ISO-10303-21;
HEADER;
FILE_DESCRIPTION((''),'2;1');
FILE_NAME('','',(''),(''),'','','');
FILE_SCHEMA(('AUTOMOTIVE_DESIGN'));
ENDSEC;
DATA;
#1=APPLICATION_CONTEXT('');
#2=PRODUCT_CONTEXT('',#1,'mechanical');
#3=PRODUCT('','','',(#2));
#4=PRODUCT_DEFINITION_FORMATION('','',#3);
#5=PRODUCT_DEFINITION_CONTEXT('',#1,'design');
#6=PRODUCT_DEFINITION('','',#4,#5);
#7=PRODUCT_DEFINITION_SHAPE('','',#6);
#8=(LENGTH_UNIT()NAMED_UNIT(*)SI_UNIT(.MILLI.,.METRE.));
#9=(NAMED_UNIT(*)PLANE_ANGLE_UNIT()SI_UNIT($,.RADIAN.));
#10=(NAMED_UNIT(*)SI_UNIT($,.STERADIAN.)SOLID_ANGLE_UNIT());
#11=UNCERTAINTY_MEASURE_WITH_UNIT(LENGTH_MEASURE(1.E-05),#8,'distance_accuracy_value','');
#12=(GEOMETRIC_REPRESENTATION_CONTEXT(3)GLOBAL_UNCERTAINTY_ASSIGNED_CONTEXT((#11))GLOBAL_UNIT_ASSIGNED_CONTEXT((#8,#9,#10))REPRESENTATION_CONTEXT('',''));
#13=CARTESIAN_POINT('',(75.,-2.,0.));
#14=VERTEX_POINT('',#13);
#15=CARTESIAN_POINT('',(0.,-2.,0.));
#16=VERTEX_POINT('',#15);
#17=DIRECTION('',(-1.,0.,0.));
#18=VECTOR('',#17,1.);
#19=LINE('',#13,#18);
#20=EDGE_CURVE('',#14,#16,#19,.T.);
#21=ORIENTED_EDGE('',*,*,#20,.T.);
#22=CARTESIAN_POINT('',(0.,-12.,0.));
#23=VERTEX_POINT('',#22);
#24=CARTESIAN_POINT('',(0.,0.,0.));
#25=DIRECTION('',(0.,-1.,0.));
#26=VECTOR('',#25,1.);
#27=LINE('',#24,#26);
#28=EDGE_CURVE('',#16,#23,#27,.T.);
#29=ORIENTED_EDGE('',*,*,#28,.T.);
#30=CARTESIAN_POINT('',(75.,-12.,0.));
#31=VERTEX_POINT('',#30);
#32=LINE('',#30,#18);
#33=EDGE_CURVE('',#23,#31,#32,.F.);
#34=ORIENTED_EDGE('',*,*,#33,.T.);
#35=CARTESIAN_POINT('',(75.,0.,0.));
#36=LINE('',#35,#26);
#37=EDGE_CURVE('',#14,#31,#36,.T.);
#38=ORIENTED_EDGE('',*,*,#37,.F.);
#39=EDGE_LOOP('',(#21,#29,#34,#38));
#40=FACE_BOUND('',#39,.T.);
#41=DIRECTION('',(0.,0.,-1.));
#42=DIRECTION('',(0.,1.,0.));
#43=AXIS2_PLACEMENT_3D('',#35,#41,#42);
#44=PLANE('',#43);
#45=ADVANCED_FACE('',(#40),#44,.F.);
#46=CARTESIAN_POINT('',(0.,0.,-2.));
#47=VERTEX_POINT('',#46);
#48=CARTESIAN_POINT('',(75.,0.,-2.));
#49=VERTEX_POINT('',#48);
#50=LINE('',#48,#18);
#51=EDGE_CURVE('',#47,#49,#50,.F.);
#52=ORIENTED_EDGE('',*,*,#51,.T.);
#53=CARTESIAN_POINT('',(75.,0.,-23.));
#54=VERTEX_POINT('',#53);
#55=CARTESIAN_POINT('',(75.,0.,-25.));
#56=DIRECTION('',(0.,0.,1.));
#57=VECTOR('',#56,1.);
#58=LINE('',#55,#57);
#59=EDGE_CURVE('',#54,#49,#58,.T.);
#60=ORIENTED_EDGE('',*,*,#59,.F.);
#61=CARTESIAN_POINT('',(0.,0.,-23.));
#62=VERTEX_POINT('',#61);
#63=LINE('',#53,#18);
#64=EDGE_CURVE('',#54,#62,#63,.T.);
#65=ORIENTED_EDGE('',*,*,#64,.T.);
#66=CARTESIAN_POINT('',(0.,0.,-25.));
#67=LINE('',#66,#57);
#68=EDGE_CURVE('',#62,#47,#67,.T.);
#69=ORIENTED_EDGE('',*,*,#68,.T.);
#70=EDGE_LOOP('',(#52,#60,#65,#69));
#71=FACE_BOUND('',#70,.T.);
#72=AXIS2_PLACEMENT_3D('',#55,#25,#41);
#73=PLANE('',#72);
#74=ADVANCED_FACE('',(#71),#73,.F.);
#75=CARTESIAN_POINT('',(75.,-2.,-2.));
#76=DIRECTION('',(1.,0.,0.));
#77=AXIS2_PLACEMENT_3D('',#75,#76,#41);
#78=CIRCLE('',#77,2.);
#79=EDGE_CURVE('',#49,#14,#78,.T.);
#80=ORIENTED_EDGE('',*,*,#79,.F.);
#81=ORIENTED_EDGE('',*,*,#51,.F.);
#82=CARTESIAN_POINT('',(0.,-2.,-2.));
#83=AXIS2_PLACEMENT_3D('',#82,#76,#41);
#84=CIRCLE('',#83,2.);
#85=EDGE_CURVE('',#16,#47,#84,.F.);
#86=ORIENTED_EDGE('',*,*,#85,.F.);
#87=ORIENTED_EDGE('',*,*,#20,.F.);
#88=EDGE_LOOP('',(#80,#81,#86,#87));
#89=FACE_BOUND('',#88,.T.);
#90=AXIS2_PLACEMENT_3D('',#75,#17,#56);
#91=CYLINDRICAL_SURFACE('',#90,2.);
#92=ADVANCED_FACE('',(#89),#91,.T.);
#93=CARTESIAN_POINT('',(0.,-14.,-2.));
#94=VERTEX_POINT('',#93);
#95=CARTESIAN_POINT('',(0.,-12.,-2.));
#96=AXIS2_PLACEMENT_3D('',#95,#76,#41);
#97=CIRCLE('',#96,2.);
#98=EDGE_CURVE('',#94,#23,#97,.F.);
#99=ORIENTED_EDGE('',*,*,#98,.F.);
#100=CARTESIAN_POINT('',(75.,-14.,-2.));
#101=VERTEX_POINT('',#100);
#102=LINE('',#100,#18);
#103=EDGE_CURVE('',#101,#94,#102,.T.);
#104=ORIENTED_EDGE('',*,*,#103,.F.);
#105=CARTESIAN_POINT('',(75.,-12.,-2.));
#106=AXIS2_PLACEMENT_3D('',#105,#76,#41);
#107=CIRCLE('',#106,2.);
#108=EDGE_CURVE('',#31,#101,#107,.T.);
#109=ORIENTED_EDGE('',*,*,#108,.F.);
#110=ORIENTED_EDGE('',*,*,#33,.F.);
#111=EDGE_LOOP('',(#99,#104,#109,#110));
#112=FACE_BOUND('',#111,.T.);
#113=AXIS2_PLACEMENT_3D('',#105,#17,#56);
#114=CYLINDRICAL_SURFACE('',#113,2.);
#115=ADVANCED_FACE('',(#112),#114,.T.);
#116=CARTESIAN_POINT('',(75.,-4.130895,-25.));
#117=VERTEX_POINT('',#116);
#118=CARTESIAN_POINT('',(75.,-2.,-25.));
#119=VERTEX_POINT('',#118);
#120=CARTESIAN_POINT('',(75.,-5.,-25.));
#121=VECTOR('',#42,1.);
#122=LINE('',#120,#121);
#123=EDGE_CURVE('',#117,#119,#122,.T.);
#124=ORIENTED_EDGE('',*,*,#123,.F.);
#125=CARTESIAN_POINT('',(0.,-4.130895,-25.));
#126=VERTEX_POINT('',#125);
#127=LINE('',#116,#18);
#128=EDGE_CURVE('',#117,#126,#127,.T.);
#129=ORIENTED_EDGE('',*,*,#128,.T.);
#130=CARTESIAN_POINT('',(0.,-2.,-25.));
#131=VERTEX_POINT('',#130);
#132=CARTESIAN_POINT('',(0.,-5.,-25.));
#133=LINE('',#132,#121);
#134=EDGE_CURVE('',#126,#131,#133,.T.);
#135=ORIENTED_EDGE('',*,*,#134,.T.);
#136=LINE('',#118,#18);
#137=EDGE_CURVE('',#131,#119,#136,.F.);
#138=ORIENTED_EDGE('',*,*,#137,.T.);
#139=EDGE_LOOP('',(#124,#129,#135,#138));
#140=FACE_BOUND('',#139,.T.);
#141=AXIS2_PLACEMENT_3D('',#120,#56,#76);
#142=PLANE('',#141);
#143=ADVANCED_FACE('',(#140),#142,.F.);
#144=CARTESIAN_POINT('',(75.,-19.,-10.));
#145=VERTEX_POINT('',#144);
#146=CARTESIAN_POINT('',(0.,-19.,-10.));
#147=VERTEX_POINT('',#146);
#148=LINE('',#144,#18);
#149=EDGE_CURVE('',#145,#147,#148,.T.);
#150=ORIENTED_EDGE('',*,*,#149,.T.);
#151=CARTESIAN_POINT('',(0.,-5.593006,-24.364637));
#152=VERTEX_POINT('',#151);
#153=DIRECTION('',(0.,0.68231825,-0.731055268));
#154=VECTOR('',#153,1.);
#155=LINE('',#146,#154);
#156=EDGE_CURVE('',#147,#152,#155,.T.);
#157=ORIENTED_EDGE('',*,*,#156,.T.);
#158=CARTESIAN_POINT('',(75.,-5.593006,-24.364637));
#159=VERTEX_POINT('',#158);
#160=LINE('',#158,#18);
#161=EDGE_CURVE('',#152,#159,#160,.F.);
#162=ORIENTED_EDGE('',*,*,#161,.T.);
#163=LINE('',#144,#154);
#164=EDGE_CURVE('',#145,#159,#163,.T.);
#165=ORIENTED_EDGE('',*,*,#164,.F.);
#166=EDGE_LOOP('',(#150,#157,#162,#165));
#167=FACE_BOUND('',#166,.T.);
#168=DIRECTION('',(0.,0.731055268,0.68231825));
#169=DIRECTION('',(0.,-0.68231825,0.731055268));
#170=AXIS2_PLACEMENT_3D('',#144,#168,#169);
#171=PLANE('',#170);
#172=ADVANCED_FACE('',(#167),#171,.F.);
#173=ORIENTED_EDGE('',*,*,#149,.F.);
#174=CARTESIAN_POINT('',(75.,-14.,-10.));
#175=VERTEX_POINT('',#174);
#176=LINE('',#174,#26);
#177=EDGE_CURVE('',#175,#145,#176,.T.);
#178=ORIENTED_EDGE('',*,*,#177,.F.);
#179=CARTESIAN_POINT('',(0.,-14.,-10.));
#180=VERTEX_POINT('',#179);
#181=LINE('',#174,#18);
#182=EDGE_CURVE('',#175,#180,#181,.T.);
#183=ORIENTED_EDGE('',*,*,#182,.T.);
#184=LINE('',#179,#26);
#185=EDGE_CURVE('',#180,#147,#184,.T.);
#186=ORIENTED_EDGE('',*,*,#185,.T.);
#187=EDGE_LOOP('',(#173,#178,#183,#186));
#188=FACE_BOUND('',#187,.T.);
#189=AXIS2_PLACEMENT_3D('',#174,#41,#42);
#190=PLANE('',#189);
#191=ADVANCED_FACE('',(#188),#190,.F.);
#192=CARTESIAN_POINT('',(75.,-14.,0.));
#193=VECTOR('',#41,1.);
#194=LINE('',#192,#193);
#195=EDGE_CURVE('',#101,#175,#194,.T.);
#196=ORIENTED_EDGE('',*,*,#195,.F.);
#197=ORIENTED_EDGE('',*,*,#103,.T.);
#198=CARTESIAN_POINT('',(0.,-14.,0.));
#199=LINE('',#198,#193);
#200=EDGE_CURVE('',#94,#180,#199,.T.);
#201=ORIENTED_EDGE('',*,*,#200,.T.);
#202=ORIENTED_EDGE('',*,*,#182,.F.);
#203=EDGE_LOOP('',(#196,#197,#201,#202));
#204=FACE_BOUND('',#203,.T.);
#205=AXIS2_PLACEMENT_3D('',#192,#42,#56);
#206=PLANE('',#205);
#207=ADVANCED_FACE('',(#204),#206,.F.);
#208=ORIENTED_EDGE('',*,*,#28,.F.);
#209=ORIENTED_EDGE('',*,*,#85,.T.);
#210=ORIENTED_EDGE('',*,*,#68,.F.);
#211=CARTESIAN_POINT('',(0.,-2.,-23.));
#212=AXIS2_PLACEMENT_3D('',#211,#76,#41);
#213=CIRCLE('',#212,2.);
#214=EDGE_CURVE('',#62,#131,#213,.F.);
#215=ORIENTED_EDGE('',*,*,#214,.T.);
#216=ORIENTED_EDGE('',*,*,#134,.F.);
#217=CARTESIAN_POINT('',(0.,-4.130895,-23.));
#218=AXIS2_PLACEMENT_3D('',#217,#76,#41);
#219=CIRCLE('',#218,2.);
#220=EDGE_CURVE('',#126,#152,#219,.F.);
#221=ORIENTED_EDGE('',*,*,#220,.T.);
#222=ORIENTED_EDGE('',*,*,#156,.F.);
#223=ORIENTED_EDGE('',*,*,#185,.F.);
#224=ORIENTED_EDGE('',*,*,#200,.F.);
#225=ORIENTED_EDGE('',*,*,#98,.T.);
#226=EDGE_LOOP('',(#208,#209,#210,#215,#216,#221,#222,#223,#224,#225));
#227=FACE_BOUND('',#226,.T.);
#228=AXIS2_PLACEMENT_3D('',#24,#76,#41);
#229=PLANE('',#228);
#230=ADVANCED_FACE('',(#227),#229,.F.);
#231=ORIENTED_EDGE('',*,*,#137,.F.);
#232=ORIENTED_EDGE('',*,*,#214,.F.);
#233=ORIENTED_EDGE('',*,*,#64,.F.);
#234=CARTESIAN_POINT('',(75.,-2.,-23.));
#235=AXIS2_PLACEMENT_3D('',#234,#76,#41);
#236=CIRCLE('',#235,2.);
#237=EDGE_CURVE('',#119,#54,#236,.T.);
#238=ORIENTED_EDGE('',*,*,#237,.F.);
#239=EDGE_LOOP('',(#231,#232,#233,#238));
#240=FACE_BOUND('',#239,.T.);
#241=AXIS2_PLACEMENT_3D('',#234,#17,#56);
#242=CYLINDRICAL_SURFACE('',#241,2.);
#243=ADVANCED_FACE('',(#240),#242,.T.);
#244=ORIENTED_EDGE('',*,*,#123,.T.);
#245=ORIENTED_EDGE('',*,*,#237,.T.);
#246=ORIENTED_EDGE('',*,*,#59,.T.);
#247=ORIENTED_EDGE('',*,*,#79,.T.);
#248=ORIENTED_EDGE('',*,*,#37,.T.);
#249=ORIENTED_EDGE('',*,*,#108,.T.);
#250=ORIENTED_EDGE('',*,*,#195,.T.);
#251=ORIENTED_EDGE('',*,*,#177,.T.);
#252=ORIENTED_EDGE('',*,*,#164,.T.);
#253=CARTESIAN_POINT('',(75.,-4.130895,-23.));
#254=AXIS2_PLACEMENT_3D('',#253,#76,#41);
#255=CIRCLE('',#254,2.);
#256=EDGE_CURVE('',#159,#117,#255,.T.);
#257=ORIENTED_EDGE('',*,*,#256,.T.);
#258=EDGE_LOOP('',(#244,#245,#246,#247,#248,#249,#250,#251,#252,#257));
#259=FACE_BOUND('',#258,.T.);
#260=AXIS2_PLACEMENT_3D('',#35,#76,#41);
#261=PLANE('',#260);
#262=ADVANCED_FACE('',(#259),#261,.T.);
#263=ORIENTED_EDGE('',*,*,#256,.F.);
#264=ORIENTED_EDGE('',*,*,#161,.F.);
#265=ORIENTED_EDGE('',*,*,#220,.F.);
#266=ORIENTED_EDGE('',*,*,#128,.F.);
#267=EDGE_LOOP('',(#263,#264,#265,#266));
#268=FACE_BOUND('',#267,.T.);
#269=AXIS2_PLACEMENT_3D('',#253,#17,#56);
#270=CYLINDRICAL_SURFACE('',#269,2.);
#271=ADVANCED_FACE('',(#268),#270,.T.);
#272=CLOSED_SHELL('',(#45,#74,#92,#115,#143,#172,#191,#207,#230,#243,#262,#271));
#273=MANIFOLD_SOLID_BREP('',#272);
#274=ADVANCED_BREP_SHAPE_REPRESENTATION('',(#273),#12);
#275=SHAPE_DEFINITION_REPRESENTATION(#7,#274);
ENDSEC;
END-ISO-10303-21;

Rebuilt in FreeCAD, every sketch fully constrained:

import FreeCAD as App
import Part
import Sketcher

V = App.Vector


def edges_at(feature, points):
    """Names of the edges that pass closest to the given points."""
    edges = feature.Shape.Edges
    near = lambda p: min(range(len(edges)), key=lambda i: edges[i].distToShape(Part.Vertex(*p))[0])
    return sorted({f"Edge{near(p) + 1}" for p in points})


def add_polygon(sketch, points):
    """Adds a closed chain of lines whose ends are joined by coincident constraints."""
    first, n = sketch.GeometryCount, len(points)
    for a, b in zip(points, points[1:] + points[:1]):
        sketch.addGeometry(Part.LineSegment(App.Vector(*a, 0), App.Vector(*b, 0)), False)
    for i in range(n):
        sketch.addConstraint(Sketcher.Constraint("Coincident", first + i, 2, first + (i + 1) % n, 1))

doc = App.newDocument("Part")
params = doc.addObject("Spreadsheet::Sheet", "Params")
for row, (alias, value) in enumerate([
    ("sketch1_width", "14 mm"),
    ("sketch1_width2", "5 mm"),
    ("sketch1_height", "10 mm"),
    ("sketch1_height2", "25 mm"),
    ("pad1_length", "75 mm"),
    ("fillet_radius", "2 mm"),
], start=1):
    params.set(f"A{row}", alias)
    params.set(f"B{row}", "=" + value)
    params.setAlias(f"B{row}", alias)

body = doc.addObject("PartDesign::Body", "Body")

sketch1 = body.newObject("Sketcher::SketchObject", "Sketch")
sketch1.AttachmentSupport = (doc.getObject("YZ_Plane"), [""])
sketch1.MapMode = "FlatFace"
add_polygon(sketch1, [(0, 0), (-14, 0), (-14, -10), (-19, -10), (-5, -25), (0, -25)])
sketch1.addConstraint([
    Sketcher.Constraint("Horizontal", 0),
    Sketcher.Constraint("Vertical", 1),
    Sketcher.Constraint("Horizontal", 2),
    Sketcher.Constraint("Horizontal", 4),
    Sketcher.Constraint("Vertical", 5),
    Sketcher.Constraint("Coincident", 5, 2, -1, 1),
    Sketcher.Constraint("Equal", 2, 4),
    Sketcher.Constraint("DistanceX", 0, 2, 0, 1, 14.0),
    Sketcher.Constraint("DistanceX", 2, 2, 2, 1, 5.0),
    Sketcher.Constraint("DistanceY", 1, 2, 1, 1, 10.0),
    Sketcher.Constraint("DistanceY", 5, 1, 5, 2, 25.0),
])
sketch1.setExpression("Constraints[13]", "Params.sketch1_width")
sketch1.setExpression("Constraints[14]", "Params.sketch1_width2")
sketch1.setExpression("Constraints[15]", "Params.sketch1_height")
sketch1.setExpression("Constraints[16]", "Params.sketch1_height2")
pad1 = body.newObject("PartDesign::Pad", "Pad")
pad1.Profile = sketch1
pad1.setExpression("Length", "Params.pad1_length")
doc.recompute()

fillet = body.newObject("PartDesign::Fillet", "Fillet")
fillet.Base = (pad1, edges_at(pad1, [
    (37.5, 0, -25),
    (37.5, -5, -25),
    (37.5, -14, 0),
    (37.5, 0, 0),
]))
fillet.setExpression("Radius", "Params.fillet_radius")

doc.recompute()
